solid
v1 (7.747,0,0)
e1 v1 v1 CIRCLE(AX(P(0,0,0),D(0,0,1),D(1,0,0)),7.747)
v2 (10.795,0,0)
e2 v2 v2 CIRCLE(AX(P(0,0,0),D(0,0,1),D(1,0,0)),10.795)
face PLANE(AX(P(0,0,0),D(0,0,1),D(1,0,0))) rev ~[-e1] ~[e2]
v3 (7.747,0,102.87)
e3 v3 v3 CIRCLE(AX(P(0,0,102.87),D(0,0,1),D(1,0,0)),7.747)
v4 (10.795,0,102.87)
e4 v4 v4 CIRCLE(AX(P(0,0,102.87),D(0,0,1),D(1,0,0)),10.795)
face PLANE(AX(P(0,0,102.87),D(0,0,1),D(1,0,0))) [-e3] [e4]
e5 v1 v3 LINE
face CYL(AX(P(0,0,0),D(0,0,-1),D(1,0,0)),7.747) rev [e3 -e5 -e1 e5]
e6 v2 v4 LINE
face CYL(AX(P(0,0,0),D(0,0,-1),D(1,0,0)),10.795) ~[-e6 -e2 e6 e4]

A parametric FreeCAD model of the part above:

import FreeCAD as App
import Part
import Sketcher

V = App.Vector
Q = App.Units.Quantity

doc = App.newDocument("Part")
body = doc.addObject("PartDesign::Body", "Body")

sketch1 = body.newObject("Sketcher::SketchObject", "Sketch")
sketch1.AttachmentSupport = (doc.getObject("XY_Plane"), [""])
sketch1.MapMode = "FlatFace"
sketch1.addGeometry(Part.Circle(V(0, 0, 0), V(0, 0, 1), 10.795), False)
sketch1.addGeometry(Part.Circle(V(0, 0, 0), V(0, 0, 1), 7.747), False)
sketch1.addConstraint(Sketcher.Constraint("Coincident", 0, 3, -1, 1))
sketch1.addConstraint(Sketcher.Constraint("Coincident", 1, 3, -1, 1))
sketch1.addConstraint(Sketcher.Constraint("Diameter", 0, Q("0.85 in")))
sketch1.addConstraint(Sketcher.Constraint("Diameter", 1, Q("0.61 in")))
pad1 = body.newObject("PartDesign::Pad", "Pad")
pad1.Profile = sketch1
pad1.Length = Q("4.05 in")

doc.recompute()
